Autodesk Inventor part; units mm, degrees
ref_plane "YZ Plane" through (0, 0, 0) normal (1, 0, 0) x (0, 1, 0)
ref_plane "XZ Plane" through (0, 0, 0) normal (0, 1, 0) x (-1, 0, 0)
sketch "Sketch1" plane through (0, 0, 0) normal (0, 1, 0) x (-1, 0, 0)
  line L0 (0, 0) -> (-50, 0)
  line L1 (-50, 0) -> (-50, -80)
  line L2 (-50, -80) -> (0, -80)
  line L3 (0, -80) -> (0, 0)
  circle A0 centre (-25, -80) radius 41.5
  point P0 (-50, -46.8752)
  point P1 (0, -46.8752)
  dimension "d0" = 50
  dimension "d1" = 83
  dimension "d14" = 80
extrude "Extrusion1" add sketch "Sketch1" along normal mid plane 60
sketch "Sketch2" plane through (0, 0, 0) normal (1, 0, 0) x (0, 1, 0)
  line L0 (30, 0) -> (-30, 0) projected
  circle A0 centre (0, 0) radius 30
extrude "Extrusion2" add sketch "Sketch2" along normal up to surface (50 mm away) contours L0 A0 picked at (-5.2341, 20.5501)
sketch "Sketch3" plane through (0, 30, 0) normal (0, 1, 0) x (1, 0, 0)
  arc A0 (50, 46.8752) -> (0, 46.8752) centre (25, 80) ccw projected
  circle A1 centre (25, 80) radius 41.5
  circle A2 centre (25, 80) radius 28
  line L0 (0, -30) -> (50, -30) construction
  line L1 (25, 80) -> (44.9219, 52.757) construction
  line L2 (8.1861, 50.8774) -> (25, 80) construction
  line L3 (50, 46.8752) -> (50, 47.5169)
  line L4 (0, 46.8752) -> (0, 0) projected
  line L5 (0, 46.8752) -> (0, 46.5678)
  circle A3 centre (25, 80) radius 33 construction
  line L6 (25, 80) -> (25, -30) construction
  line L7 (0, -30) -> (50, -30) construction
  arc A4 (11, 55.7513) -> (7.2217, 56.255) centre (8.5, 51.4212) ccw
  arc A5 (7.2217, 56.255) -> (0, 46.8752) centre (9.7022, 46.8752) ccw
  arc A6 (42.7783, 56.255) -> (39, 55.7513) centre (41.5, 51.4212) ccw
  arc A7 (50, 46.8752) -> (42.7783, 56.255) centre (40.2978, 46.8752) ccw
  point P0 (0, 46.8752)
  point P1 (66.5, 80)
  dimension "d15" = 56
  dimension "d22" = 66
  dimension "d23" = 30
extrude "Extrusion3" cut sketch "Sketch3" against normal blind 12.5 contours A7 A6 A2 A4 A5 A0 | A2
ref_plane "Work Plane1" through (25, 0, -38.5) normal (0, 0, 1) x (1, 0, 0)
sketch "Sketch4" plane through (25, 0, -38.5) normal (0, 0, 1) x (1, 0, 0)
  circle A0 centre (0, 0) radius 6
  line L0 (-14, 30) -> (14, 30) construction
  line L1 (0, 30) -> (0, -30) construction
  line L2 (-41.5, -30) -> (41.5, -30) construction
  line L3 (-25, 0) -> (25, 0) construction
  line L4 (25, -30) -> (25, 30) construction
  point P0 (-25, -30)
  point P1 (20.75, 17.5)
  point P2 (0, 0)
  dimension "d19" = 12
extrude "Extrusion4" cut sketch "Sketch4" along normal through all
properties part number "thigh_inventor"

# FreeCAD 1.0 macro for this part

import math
import FreeCAD as App
import Part
import Sketcher
from FreeCAD import Vector
Q = App.Units.Quantity

doc = App.newDocument("Part")
body = doc.addObject("PartDesign::Body", "Body")

sketch1 = doc.addObject("Sketcher::SketchObject", "Sketch")
body.addObject(sketch1)
sketch1.AttachmentSupport = (doc.XZ_Plane, [""])
sketch1.MapMode = "FlatFace"
sketch1.addGeometry([
    Part.LineSegment(Vector(0, -47, 0), Vector(0, 0, 0)),
    Part.LineSegment(Vector(0, 0, 0), Vector(50, 0, 0)),
    Part.LineSegment(Vector(50, 0, 0), Vector(50, -47, 0)),
    Part.ArcOfCircle(Part.Circle(Vector(25, -80, 0), Vector(0, 0, 1), 42), math.radians(127), math.radians(413)),
], False)
sketch1.addConstraint([
    Sketcher.Constraint("Coincident", 0, 2, 1, 1),
    Sketcher.Constraint("Coincident", 1, 2, 2, 1),
    Sketcher.Constraint("Coincident", 2, 2, 3, 2),
    Sketcher.Constraint("Coincident", 3, 1, 0, 1),
    Sketcher.Constraint("Vertical", 0),
    Sketcher.Constraint("Horizontal", 1),
    Sketcher.Constraint("Vertical", 2),
    Sketcher.Constraint("Coincident", 0, 2, -1, 1),
    Sketcher.Constraint("Horizontal", 2, 2, 3, 1),
    Sketcher.Constraint("Radius", 3, Q("41.5 mm")),
    Sketcher.Constraint("DistanceX", 1, 1, 1, 2, Q("50 mm")),
    Sketcher.Constraint("DistanceY", 3, 3, -1, 1, Q("80 mm")),
])
pad1 = doc.addObject("PartDesign::Pad", "Pad")
body.addObject(pad1)
pad1.Profile = sketch1
pad1.Length = 60
pad1.Midplane = True

sketch2 = doc.addObject("Sketcher::SketchObject", "Sketch001")
body.addObject(sketch2)
sketch2.AttachmentSupport = (doc.YZ_Plane, [""])
sketch2.MapMode = "FlatFace"
sketch2.addGeometry([
    Part.LineSegment(Vector(-30, 0, 0), Vector(30, 0, 0)),
    Part.ArcOfCircle(Part.Circle(Vector(0, 0, 0), Vector(0, 0, 1), 30), math.radians(0), math.radians(180)),
], False)
sketch2.addConstraint([
    Sketcher.Constraint("Coincident", 0, 1, 1, 2),
    Sketcher.Constraint("Coincident", 1, 1, 0, 2),
    Sketcher.Constraint("Horizontal", 0),
    Sketcher.Constraint("Coincident", 1, 3, -1, 1),
    Sketcher.Constraint("PointOnObject", 0, 1, -1),
    Sketcher.Constraint("Radius", 1, Q("30 mm")),
])
pad2 = doc.addObject("PartDesign::Pad", "Pad001")
body.addObject(pad2)
pad2.Profile = sketch2
pad2.Length = 50

sketch3 = doc.addObject("Sketcher::SketchObject", "Sketch002")
body.addObject(sketch3)
sketch3.AttachmentSupport = (doc.XZ_Plane, [""])
sketch3.MapMode = "FlatFace"
sketch3.AttachmentOffset = App.Placement(Vector(0, 0, -30), App.Rotation())
sketch3.addGeometry([
    Part.ArcOfCircle(Part.Circle(Vector(40.3, -46.9, 0), Vector(0, 0, 1), 9.7), math.radians(-75), math.radians(0)),
    Part.ArcOfCircle(Part.Circle(Vector(25, -80, 0), Vector(0, 0, 1), 41.5), math.radians(127), math.radians(413)),
    Part.ArcOfCircle(Part.Circle(Vector(9.7, -46.9, 0), Vector(0, 0, 1), 9.7), math.radians(180), math.radians(255)),
    Part.ArcOfCircle(Part.Circle(Vector(8.5, -51.4, 0), Vector(0, 0, 1), 5), math.radians(-105), math.radians(-60)),
    Part.ArcOfCircle(Part.Circle(Vector(25, -80, 0), Vector(0, 0, 1), 28), math.radians(60), math.radians(120)),
    Part.ArcOfCircle(Part.Circle(Vector(41.5, -51.4, 0), Vector(0, 0, 1), 5), math.radians(-120), math.radians(-75)),
], False)
sketch3.addConstraint([
    Sketcher.Constraint("Coincident", 0, 2, 1, 2),
    Sketcher.Constraint("Coincident", 1, 1, 2, 1),
    Sketcher.Constraint("Tangent", 2, 2, 3, 1),
    Sketcher.Constraint("Tangent", 3, 2, 4, 2),
    Sketcher.Constraint("Tangent", 4, 1, 5, 1),
    Sketcher.Constraint("Tangent", 5, 2, 0, 1),
    Sketcher.Constraint("Coincident", 4, 3, 1, 3),
    Sketcher.Constraint("Equal", 0, 2),
    Sketcher.Constraint("Equal", 3, 5),
    Sketcher.Constraint("PointOnObject", 1, 1, -2),
    Sketcher.Constraint("Horizontal", 0, 3, 2, 3),
    Sketcher.Constraint("Horizontal", 3, 3, 5, 3),
    Sketcher.Constraint("Horizontal", 2, 3, 0, 2),
    Sketcher.Constraint("Radius", 4, Q("28 mm")),
    Sketcher.Constraint("Radius", 3, Q("5 mm")),
    Sketcher.Constraint("Radius", 1, Q("41.5 mm")),
    Sketcher.Constraint("DistanceX", -1, 1, 1, 3, Q("25 mm")),
    Sketcher.Constraint("DistanceY", 1, 3, -1, 1, Q("80 mm")),
    Sketcher.Constraint("DistanceX", -1, 1, 3, 2, Q("11 mm")),
])
pocket1 = doc.addObject("PartDesign::Pocket", "Pocket")
body.addObject(pocket1)
pocket1.Profile = sketch3
pocket1.Length = 12.5
pocket1.Reversed = True

sketch4 = doc.addObject("Sketcher::SketchObject", "Sketch003")
body.addObject(sketch4)
sketch4.AttachmentSupport = (doc.XY_Plane, [""])
sketch4.MapMode = "FlatFace"
sketch4.AttachmentOffset = App.Placement(Vector(0, 0, -38.5), App.Rotation())
sketch4.addGeometry(Part.Circle(Vector(25, 0, 0), Vector(0, 0, 1), 6), False)
sketch4.addConstraint([
    Sketcher.Constraint("PointOnObject", 0, 3, -1),
    Sketcher.Constraint("Diameter", 0, Q("12 mm")),
    Sketcher.Constraint("DistanceX", -1, 1, 0, 3, Q("25 mm")),
])
pocket2 = doc.addObject("PartDesign::Pocket", "Pocket001")
body.addObject(pocket2)
pocket2.Profile = sketch4
pocket2.Type = "ThroughAll"
pocket2.Reversed = True

doc.recompute()
